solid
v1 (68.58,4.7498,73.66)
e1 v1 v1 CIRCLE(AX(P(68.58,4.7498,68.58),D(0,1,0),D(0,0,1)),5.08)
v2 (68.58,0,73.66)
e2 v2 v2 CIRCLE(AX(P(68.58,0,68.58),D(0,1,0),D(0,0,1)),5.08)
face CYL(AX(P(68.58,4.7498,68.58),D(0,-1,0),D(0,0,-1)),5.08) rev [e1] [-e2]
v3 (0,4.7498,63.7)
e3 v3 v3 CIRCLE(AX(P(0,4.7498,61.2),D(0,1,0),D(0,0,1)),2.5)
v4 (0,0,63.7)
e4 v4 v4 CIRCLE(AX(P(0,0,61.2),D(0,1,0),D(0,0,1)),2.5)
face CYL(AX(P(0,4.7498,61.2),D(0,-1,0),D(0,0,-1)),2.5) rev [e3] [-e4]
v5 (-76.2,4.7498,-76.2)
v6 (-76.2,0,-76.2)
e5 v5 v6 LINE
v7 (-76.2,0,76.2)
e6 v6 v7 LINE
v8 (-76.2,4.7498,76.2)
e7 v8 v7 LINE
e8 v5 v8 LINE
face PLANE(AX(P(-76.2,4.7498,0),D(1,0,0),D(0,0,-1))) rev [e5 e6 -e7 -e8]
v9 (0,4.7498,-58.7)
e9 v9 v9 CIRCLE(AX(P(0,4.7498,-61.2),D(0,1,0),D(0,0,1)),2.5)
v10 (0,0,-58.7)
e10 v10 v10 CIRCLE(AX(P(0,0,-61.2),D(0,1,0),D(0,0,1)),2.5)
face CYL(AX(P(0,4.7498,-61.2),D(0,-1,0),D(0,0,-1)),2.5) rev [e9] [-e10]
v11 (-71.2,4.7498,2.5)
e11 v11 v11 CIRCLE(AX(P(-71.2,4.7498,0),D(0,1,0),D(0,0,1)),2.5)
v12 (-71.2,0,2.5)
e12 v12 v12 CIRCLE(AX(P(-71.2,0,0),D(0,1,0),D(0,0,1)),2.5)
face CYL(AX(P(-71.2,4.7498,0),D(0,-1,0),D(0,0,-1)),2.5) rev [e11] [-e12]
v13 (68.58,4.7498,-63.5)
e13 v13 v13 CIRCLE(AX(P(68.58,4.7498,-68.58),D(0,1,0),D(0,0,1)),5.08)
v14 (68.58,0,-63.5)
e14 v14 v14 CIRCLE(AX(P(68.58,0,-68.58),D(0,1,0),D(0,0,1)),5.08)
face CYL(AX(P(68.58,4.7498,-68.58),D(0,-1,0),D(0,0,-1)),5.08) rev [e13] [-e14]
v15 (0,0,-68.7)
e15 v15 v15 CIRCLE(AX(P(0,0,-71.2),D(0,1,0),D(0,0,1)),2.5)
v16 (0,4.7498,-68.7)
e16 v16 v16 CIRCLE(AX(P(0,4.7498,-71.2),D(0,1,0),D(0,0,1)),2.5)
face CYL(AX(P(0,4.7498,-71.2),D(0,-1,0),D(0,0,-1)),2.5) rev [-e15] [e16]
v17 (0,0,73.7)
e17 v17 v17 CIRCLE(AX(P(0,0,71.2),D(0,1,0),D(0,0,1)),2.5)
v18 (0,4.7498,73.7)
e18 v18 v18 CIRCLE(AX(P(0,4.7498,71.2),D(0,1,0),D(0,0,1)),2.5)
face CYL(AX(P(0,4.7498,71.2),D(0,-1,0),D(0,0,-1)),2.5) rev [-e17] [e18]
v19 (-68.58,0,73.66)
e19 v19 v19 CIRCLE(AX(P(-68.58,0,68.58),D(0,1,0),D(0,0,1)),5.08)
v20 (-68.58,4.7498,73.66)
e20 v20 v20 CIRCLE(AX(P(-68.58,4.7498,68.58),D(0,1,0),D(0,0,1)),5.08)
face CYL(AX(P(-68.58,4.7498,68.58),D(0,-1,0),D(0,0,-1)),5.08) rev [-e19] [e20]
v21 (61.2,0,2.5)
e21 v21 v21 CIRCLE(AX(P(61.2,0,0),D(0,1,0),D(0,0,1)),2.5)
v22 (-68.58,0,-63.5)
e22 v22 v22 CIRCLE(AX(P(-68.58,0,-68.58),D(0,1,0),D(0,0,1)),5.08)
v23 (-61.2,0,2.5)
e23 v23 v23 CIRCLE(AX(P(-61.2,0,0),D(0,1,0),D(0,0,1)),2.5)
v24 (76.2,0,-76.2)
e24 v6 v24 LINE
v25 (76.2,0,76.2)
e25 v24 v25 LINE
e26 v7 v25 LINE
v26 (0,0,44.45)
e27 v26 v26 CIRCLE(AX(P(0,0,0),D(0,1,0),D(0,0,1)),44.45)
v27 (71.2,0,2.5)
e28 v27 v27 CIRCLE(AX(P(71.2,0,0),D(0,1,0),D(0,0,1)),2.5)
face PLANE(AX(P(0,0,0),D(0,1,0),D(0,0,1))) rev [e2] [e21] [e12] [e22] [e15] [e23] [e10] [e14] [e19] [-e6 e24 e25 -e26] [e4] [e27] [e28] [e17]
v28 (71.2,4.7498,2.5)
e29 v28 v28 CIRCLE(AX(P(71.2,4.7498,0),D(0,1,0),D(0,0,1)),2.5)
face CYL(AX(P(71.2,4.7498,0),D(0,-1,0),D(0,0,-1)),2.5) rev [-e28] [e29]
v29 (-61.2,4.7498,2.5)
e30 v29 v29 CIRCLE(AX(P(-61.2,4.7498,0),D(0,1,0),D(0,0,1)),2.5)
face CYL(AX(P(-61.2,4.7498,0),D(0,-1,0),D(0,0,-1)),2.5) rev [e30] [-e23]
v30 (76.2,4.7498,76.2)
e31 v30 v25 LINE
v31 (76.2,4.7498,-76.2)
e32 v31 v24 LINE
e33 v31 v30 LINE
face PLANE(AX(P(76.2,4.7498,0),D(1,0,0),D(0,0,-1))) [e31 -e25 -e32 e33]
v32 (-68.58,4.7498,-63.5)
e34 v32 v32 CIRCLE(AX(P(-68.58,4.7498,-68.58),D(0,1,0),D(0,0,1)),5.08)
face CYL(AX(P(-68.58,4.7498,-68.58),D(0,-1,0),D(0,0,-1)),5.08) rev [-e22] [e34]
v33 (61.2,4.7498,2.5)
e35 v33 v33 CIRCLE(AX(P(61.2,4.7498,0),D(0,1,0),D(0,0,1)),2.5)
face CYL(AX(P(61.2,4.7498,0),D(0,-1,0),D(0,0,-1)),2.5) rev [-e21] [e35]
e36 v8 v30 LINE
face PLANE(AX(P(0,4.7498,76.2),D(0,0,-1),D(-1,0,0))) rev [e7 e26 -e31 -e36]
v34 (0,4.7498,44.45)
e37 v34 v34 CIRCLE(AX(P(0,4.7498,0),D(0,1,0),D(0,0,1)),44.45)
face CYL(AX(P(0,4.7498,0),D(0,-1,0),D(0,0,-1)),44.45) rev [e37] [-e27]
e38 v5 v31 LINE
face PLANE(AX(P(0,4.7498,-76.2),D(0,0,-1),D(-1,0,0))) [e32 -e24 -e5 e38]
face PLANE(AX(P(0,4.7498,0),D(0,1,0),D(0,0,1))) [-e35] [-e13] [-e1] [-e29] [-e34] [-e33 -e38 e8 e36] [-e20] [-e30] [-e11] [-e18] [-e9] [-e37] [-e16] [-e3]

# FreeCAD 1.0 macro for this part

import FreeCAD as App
import Part
import Sketcher

V = App.Vector
Q = App.Units.Quantity


def add_polygon(sketch, points):
    """Adds a closed chain of lines whose ends are joined by coincident constraints."""
    first, n = sketch.GeometryCount, len(points)
    for a, b in zip(points, points[1:] + points[:1]):
        sketch.addGeometry(Part.LineSegment(App.Vector(*a, 0), App.Vector(*b, 0)), False)
    for i in range(n):
        sketch.addConstraint(Sketcher.Constraint("Coincident", first + i, 2, first + (i + 1) % n, 1))

doc = App.newDocument("Part")
body = doc.addObject("PartDesign::Body", "Body")

sketch1 = body.newObject("Sketcher::SketchObject", "Sketch")
sketch1.AttachmentSupport = (doc.getObject("XZ_Plane"), [""])
sketch1.MapMode = "FlatFace"
add_polygon(sketch1, [(-76.2, -76.2), (-76.2, 76.2), (76.2, 76.2), (76.2, -76.2)])
sketch1.addGeometry(Part.Circle(V(-68.6, 68.6, 0), V(0, 0, 1), 5.1), False)
sketch1.addGeometry(Part.Circle(V(0, 71.2, 0), V(0, 0, 1), 2.5), False)
sketch1.addGeometry(Part.Circle(V(0, 61.2, 0), V(0, 0, 1), 2.5), False)
sketch1.addGeometry(Part.Circle(V(68.6, 68.6, 0), V(0, 0, 1), 5.1), False)
sketch1.addGeometry(Part.Circle(V(-71.2, 0, 0), V(0, 0, 1), 2.5), False)
sketch1.addGeometry(Part.Circle(V(-61.2, 0, 0), V(0, 0, 1), 2.5), False)
sketch1.addGeometry(Part.Circle(V(-68.6, -68.6, 0), V(0, 0, 1), 5.1), False)
sketch1.addGeometry(Part.Circle(V(0, 0, 0), V(0, 0, 1), 44.5), False)
sketch1.addGeometry(Part.Circle(V(61.2, 0, 0), V(0, 0, 1), 2.5), False)
sketch1.addGeometry(Part.Circle(V(71.2, 0, 0), V(0, 0, 1), 2.5), False)
sketch1.addGeometry(Part.Circle(V(0, -61.2, 0), V(0, 0, 1), 2.5), False)
sketch1.addGeometry(Part.Circle(V(0, -71.2, 0), V(0, 0, 1), 2.5), False)
sketch1.addGeometry(Part.Circle(V(68.6, -68.6, 0), V(0, 0, 1), 5.1), False)
sketch1.addConstraint(Sketcher.Constraint("Vertical", 0))
sketch1.addConstraint(Sketcher.Constraint("Horizontal", 1))
sketch1.addConstraint(Sketcher.Constraint("Vertical", 2))
sketch1.addConstraint(Sketcher.Constraint("Horizontal", 3))
sketch1.addConstraint(Sketcher.Constraint("Coincident", 11, 3, -1, 1))
sketch1.addConstraint(Sketcher.Constraint("Equal", 5, 6))
sketch1.addConstraint(Sketcher.Constraint("Equal", 4, 7))
sketch1.addConstraint(Sketcher.Constraint("Equal", 6, 8))
sketch1.addConstraint(Sketcher.Constraint("Equal", 8, 9))
sketch1.addConstraint(Sketcher.Constraint("Equal", 7, 10))
sketch1.addConstraint(Sketcher.Constraint("Equal", 9, 12))
sketch1.addConstraint(Sketcher.Constraint("Equal", 12, 13))
sketch1.addConstraint(Sketcher.Constraint("Equal", 13, 14))
sketch1.addConstraint(Sketcher.Constraint("Equal", 14, 15))
sketch1.addConstraint(Sketcher.Constraint("Equal", 10, 16))
sketch1.addConstraint(Sketcher.Constraint("Symmetric", 7, 3, 10, 3, -1, 1))
sketch1.addConstraint(Sketcher.Constraint("Symmetric", 9, 3, 12, 3, -1, 1))
sketch1.addConstraint(Sketcher.Constraint("Symmetric", 8, 3, 13, 3, -1, 1))
sketch1.addConstraint(Sketcher.Constraint("Symmetric", 6, 3, 14, 3, -1, 1))
sketch1.addConstraint(Sketcher.Constraint("Symmetric", 5, 3, 15, 3, -1, 1))
sketch1.addConstraint(Sketcher.Constraint("Symmetric", 4, 3, 16, 3, -1, 1))
sketch1.addConstraint(Sketcher.Constraint("Symmetric", 0, 2, 2, 2, -1, 1))
sketch1.addConstraint(Sketcher.Constraint("Symmetric", 4, 3, 7, 3, -2))
sketch1.addConstraint(Sketcher.Constraint("PointOnObject", 5, 3, -2))
sketch1.addConstraint(Sketcher.Constraint("PointOnObject", 6, 3, -2))
sketch1.addConstraint(Sketcher.Constraint("PointOnObject", 8, 3, -1))
sketch1.addConstraint(Sketcher.Constraint("PointOnObject", 9, 3, -1))
sketch1.addConstraint(Sketcher.Constraint("Equal", 3, 0))
sketch1.addConstraint(Sketcher.Constraint("Diameter", 4, Q("0.4 in")))
sketch1.addConstraint(Sketcher.Constraint("Diameter", 11, Q("3.5 in")))
sketch1.addConstraint(Sketcher.Constraint("DistanceX", 1, 1, 1, 2, Q("6 in")))
sketch1.addConstraint(Sketcher.Constraint("DistanceX", 4, 3, -1, 1, Q("2.7 in")))
sketch1.addConstraint(Sketcher.Constraint("DistanceY", -1, 1, 4, 3, Q("2.7 in")))
sketch1.addConstraint(Sketcher.Constraint("Diameter", 5, 5.0))
sketch1.addConstraint(Sketcher.Constraint("DistanceY", -1, 1, 5, 3, 71.2))
sketch1.addConstraint(Sketcher.Constraint("DistanceY", -1, 1, 6, 3, 61.2))
sketch1.addConstraint(Sketcher.Constraint("DistanceX", 8, 3, -1, 1, 71.2))
sketch1.addConstraint(Sketcher.Constraint("DistanceX", 9, 3, -1, 1, 61.2))
pad1 = body.newObject("PartDesign::Pad", "Pad")
pad1.Profile = sketch1
pad1.Length = Q("0.187 in")
pad1.Reversed = True

doc.recompute()
